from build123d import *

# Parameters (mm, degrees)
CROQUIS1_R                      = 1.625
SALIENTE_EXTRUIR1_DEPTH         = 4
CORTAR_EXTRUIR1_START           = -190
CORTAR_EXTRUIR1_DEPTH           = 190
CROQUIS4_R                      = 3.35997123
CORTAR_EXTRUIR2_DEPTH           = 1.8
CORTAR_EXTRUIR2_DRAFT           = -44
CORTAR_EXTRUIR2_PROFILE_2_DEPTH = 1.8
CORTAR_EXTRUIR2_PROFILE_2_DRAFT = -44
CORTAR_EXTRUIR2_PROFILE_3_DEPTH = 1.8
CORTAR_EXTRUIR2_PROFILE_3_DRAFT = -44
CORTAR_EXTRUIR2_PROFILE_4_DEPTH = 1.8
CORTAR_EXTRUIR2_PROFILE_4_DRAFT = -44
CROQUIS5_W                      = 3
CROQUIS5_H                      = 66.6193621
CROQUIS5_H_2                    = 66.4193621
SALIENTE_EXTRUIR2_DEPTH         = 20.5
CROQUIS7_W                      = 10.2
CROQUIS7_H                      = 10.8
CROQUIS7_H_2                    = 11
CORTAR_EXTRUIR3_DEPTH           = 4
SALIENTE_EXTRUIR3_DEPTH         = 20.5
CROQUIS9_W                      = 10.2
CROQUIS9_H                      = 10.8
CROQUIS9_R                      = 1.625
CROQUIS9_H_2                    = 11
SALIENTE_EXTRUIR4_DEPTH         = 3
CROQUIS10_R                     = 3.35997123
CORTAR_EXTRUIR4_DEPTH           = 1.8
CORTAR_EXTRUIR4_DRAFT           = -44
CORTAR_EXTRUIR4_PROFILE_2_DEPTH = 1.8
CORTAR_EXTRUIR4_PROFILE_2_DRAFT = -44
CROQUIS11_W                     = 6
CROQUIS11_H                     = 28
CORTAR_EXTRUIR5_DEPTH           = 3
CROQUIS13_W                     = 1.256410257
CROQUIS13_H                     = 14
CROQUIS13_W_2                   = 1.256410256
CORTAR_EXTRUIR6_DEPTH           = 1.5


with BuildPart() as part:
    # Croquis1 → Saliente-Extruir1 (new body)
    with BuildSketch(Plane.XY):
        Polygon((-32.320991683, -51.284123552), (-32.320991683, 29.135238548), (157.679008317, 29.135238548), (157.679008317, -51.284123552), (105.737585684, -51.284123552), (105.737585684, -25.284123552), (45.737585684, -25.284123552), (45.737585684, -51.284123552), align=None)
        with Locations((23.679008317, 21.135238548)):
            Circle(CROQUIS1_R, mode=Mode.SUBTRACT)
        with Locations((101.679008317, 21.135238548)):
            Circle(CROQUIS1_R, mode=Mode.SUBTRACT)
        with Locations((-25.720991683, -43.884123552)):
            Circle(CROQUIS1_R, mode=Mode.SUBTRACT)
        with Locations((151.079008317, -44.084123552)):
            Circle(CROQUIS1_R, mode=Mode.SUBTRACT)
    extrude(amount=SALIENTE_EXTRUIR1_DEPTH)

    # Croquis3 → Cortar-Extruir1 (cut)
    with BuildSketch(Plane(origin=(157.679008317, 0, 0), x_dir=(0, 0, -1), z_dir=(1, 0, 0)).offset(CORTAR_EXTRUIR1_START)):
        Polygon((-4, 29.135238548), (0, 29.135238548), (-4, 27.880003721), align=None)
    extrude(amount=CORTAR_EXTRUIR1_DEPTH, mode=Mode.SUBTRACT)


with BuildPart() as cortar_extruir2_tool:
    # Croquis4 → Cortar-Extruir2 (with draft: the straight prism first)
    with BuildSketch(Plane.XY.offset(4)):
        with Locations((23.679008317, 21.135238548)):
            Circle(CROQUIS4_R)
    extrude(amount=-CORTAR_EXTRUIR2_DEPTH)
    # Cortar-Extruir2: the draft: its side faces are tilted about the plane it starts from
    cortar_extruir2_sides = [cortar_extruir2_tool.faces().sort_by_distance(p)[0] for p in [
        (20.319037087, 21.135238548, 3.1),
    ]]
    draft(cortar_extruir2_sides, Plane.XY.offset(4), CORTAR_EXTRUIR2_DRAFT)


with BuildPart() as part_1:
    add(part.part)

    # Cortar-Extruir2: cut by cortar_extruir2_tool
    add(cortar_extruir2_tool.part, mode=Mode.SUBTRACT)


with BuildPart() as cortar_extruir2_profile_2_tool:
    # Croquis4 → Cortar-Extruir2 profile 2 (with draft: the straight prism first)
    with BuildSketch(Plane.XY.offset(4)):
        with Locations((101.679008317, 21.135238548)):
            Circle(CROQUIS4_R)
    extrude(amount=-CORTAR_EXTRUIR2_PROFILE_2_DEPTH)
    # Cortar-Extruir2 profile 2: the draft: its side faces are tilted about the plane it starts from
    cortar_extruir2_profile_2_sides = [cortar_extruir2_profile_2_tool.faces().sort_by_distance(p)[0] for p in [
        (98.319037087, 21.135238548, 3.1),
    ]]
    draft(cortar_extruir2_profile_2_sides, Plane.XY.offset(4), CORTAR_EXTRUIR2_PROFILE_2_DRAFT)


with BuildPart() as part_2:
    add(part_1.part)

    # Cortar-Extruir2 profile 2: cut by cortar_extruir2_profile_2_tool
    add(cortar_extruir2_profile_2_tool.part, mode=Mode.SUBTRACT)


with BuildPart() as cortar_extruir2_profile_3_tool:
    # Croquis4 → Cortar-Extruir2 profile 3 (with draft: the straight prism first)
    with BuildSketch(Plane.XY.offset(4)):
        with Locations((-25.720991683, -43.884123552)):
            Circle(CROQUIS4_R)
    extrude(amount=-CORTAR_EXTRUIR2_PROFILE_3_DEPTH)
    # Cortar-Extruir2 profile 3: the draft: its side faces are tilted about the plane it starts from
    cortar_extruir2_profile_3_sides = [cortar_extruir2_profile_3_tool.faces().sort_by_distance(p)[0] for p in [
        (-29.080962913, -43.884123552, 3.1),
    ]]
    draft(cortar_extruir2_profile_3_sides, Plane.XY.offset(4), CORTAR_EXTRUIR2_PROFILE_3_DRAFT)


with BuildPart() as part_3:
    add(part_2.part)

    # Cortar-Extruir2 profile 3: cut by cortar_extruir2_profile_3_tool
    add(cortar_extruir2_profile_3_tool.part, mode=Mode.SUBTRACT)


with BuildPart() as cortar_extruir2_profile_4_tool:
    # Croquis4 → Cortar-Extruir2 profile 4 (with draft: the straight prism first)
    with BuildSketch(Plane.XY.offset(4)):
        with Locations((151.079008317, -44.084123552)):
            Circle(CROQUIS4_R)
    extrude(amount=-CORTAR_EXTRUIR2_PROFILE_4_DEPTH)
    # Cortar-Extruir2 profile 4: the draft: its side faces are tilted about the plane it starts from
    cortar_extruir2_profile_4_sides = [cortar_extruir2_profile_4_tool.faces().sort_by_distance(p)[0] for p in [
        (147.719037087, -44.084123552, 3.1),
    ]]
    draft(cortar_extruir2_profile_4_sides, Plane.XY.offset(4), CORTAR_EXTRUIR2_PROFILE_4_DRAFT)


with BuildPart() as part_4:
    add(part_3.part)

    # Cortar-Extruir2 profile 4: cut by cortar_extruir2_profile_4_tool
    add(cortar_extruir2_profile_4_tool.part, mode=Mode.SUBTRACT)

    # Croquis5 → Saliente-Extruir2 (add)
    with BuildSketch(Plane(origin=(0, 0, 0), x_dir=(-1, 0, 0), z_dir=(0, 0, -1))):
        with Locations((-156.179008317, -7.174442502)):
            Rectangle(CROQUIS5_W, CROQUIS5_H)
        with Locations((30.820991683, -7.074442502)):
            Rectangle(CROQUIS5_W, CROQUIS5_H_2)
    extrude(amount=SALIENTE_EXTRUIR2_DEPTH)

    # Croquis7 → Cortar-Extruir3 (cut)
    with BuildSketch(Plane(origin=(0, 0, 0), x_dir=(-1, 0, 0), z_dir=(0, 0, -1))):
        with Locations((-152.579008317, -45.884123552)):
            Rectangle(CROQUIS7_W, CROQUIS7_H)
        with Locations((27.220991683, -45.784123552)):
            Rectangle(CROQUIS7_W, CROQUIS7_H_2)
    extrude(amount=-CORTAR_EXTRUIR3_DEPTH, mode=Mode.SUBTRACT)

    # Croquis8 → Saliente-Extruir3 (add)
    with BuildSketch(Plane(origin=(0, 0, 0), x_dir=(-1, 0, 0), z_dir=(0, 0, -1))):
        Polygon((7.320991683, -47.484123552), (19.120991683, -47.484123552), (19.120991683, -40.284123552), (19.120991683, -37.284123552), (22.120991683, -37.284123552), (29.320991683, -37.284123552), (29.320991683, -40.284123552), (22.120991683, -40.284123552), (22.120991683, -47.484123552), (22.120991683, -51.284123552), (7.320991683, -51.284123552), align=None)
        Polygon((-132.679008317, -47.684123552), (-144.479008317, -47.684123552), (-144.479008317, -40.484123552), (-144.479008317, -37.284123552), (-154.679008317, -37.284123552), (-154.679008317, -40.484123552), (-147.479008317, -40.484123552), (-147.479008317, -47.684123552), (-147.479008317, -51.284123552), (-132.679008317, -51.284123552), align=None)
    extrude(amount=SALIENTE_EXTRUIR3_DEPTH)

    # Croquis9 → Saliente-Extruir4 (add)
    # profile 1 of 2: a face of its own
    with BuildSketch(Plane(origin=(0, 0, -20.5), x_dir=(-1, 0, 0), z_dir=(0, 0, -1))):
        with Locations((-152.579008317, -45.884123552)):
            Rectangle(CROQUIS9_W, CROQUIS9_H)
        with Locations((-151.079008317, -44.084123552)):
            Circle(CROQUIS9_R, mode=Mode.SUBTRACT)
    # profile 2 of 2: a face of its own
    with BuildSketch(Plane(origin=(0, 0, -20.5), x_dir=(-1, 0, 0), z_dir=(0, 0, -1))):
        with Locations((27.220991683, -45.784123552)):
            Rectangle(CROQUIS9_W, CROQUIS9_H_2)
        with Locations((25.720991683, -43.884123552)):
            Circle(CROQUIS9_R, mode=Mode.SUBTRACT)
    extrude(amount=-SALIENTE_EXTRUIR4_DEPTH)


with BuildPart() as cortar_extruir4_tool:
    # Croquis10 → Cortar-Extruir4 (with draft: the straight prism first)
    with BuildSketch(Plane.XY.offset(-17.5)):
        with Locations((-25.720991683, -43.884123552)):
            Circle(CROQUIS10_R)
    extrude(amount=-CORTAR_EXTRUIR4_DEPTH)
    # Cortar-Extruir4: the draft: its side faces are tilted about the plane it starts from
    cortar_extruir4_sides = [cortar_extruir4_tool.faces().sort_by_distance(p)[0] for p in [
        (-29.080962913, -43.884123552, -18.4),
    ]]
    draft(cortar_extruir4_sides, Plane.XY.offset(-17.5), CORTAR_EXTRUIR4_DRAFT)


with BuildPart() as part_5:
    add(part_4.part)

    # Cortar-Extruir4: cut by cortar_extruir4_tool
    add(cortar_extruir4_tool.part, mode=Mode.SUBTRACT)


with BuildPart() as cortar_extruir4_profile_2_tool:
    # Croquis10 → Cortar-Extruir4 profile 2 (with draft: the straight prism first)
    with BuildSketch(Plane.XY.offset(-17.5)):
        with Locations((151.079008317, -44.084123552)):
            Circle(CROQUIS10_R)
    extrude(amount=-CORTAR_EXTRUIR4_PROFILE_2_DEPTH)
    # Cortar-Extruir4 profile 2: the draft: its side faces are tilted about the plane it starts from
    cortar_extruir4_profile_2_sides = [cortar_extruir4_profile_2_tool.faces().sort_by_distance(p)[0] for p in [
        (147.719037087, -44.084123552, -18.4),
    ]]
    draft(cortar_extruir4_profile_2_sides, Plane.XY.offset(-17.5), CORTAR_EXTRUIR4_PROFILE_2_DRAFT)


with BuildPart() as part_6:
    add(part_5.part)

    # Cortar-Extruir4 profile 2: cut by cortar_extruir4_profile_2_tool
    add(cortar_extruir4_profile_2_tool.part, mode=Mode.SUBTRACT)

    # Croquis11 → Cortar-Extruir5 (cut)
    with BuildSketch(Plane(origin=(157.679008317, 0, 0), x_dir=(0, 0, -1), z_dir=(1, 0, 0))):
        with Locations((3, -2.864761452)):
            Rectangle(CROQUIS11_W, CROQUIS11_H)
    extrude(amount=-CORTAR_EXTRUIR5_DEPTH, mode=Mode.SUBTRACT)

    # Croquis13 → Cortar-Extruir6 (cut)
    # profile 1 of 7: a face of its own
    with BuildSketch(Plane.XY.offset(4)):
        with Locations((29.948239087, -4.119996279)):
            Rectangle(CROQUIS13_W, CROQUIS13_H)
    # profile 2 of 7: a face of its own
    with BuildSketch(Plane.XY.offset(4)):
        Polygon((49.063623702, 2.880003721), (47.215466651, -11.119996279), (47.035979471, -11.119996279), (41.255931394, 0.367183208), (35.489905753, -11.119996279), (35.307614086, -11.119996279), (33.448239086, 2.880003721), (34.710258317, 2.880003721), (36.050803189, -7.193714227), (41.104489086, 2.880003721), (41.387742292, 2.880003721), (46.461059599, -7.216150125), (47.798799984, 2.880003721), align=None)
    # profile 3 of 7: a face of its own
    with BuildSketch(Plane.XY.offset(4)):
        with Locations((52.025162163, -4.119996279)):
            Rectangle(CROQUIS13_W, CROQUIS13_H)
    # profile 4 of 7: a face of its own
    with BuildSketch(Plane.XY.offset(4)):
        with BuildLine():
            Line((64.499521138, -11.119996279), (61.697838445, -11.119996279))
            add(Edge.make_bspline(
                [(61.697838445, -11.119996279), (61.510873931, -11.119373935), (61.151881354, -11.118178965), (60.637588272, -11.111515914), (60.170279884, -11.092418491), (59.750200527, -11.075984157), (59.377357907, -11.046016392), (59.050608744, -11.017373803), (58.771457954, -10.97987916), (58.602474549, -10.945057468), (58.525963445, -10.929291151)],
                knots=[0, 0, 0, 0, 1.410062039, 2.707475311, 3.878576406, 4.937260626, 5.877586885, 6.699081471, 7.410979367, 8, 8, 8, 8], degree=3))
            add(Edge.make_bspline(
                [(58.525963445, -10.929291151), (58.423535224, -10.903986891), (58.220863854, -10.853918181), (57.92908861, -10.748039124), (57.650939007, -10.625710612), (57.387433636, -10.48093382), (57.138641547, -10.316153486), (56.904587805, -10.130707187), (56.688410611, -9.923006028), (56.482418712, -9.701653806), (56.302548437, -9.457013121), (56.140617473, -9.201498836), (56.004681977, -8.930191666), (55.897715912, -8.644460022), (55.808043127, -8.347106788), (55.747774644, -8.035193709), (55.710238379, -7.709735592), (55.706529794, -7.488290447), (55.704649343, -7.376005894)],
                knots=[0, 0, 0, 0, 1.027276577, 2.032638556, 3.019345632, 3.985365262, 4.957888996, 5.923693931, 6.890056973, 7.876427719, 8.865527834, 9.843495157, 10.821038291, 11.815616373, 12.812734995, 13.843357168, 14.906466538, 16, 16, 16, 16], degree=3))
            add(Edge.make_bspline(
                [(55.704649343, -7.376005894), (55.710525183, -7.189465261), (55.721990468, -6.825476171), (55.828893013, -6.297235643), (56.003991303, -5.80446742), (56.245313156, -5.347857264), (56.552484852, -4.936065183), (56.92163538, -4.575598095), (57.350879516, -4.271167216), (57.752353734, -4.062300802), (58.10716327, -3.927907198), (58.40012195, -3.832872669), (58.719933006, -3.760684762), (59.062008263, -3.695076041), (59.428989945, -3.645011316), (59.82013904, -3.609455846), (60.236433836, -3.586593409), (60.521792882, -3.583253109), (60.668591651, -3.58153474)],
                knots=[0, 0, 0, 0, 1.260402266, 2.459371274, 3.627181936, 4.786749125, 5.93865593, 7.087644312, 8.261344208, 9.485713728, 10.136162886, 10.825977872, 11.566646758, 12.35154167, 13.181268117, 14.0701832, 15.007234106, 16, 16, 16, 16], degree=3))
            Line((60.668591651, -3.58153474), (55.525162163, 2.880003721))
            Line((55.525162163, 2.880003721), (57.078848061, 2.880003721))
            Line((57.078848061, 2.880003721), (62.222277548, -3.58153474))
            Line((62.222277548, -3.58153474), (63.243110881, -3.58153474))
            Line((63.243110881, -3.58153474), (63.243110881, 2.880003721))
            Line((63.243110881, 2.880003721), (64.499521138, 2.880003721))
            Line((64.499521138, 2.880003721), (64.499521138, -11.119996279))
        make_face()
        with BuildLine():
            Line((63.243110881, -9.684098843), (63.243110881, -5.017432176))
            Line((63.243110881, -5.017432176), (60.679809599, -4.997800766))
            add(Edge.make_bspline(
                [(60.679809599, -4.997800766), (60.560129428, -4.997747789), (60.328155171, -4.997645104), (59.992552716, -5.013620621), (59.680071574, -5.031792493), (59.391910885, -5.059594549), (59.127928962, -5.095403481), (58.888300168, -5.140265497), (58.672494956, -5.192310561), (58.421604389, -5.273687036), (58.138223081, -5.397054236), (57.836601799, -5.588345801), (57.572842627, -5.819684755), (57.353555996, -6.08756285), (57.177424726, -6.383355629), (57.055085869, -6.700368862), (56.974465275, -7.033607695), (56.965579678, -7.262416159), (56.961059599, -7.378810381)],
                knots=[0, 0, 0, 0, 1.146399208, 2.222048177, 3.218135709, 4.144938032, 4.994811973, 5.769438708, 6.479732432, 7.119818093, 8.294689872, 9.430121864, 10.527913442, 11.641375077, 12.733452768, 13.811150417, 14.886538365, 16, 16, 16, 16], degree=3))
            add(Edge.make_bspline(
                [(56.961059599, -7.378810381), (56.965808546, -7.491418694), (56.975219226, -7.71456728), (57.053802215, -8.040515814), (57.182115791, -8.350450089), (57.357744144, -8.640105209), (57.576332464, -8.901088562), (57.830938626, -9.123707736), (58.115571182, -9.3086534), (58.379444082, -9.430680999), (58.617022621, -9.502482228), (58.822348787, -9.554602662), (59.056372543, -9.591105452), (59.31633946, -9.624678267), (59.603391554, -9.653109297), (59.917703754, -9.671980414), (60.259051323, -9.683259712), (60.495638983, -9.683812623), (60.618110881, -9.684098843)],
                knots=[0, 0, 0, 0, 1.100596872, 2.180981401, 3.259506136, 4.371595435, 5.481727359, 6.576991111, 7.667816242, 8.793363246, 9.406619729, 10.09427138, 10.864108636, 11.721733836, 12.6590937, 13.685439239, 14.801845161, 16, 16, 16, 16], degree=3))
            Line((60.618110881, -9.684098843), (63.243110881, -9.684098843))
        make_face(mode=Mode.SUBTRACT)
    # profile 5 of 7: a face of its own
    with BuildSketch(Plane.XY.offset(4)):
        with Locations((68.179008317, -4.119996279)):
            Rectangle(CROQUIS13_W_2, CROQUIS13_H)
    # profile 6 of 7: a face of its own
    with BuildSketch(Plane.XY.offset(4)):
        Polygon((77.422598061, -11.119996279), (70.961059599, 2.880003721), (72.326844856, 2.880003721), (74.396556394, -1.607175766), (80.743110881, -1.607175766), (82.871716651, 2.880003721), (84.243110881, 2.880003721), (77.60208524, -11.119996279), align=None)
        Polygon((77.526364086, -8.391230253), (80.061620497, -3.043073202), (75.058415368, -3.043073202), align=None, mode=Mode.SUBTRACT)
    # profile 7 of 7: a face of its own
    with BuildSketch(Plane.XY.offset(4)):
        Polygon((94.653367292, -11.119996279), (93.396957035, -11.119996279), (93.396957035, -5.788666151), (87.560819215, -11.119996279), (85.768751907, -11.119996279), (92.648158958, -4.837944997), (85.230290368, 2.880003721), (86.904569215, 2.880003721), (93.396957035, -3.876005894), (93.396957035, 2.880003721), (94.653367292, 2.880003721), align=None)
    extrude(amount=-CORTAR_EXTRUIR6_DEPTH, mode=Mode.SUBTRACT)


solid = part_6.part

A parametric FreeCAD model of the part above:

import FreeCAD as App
import Part
import Sketcher

V = App.Vector
Q = App.Units.Quantity


def faces_at(feature, points):
    """Names of the faces that lie closest to the given points."""
    faces = feature.Shape.Faces
    near = lambda p: min(range(len(faces)), key=lambda i: faces[i].distToShape(Part.Vertex(*p))[0])
    return sorted({f"Face{near(p) + 1}" for p in points})


def add_polygon(sketch, points):
    """Adds a closed chain of lines whose ends are joined by coincident constraints."""
    first, n = sketch.GeometryCount, len(points)
    for a, b in zip(points, points[1:] + points[:1]):
        sketch.addGeometry(Part.LineSegment(App.Vector(*a, 0), App.Vector(*b, 0)), False)
    for i in range(n):
        sketch.addConstraint(Sketcher.Constraint("Coincident", first + i, 2, first + (i + 1) % n, 1))

doc = App.newDocument("Part")
body = doc.addObject("PartDesign::Body", "Body")

# Sketch on XY plane
sketch1 = body.newObject("Sketcher::SketchObject", "Sketch")
sketch1.AttachmentSupport = (doc.getObject("XY_Plane"), [""])
sketch1.MapMode = "FlatFace"
add_polygon(sketch1, [(-32.3, 29.1), (-32.3, -51.3), (45.7, -51.3), (45.7, -25.3), (105.7, -25.3), (105.7, -51.3), (157.7, -51.3), (157.7, 29.1)])  # lines 0-7
sketch1.addGeometry(Part.Circle(V(151.1, -44.1, 0), V(0, 0, 1), 1.6), False)  # 8
sketch1.addGeometry(Part.Circle(V(-25.7, -43.9, 0), V(0, 0, 1), 1.6), False)  # 9
sketch1.addGeometry(Part.Circle(V(101.7, 21.1, 0), V(0, 0, 1), 1.6), False)  # 10
sketch1.addGeometry(Part.Circle(V(23.7, 21.1, 0), V(0, 0, 1), 1.6), False)  # 11
sketch1.addConstraint([
    Sketcher.Constraint("Vertical", 0),
    Sketcher.Constraint("Horizontal", 1),
    Sketcher.Constraint("Vertical", 2),
    Sketcher.Constraint("Horizontal", 3),
    Sketcher.Constraint("Vertical", 4),
    Sketcher.Constraint("Horizontal", 5),
    Sketcher.Constraint("Vertical", 6),
    Sketcher.Constraint("Horizontal", 7),
    Sketcher.Constraint("Equal", 8, 9),
    Sketcher.Constraint("Equal", 9, 10),
    Sketcher.Constraint("Equal", 10, 11),
    Sketcher.Constraint("Horizontal", 10, 3, 11, 3),
    Sketcher.Constraint("Horizontal", 1, 2, 4, 2),
    Sketcher.Constraint("Diameter", 8, 3.25),
    Sketcher.Constraint("DistanceX", 3, 1, 3, 2, 60.0),
    Sketcher.Constraint("DistanceX", 7, 2, 7, 1, 190.0),
    Sketcher.Constraint("DistanceY", 2, 1, 2, 2, 26.0),
    Sketcher.Constraint("DistanceX", 11, 3, 10, 3, 78.0),
    Sketcher.Constraint("DistanceX", 0, 2, 11, 3, 56.0),
    Sketcher.Constraint("DistanceY", 10, 3, 6, 2, 8.0),
    Sketcher.Constraint("DistanceX", 9, 3, 8, 3, 176.8),
    Sketcher.Constraint("DistanceY", 8, 3, 9, 3, 0.2),
    Sketcher.Constraint("DistanceX", 10, 3, 8, 3, 49.4),
    Sketcher.Constraint("DistanceY", 0, 2, 9, 3, 7.4),
    Sketcher.Constraint("DistanceX", 1, 1, 1, 2, 78.058577),
    Sketcher.Constraint("DistanceY", 0, 2, 0, 1, 80.419362),
    Sketcher.Constraint("DistanceX", -1, 1, 8, 3, 151.079008),
    Sketcher.Constraint("DistanceY", -1, 1, 10, 3, 21.135239),
])
pad1 = body.newObject("PartDesign::Pad", "Pad")
pad1.Profile = sketch1
pad1.Length = 4

# Sketch on YZ plane
sketch2 = body.newObject("Sketcher::SketchObject", "Sketch001")
sketch2.AttachmentSupport = (doc.getObject("YZ_Plane"), [""])
sketch2.MapMode = "FlatFace"
sketch2.AttachmentOffset = App.Placement(V(0, 0, -32.320992), App.Rotation())
add_polygon(sketch2, [(29.1, 0), (29.1, 4), (27.9, 4)])  # lines 0-2
sketch2.addConstraint([
    Sketcher.Constraint("Vertical", 0),
    Sketcher.Constraint("Horizontal", 1),
    Sketcher.Constraint("PointOnObject", 2, 2, -1),
    Sketcher.Constraint("DistanceY", 0, 1, 0, 2, 4.0),
    Sketcher.Constraint("Distance", 2, 4.192328),
    Sketcher.Constraint("DistanceX", -1, 1, 0, 2, 29.135239),
])
pocket1 = body.newObject("PartDesign::Pocket", "Pocket")
pocket1.Profile = sketch2
pocket1.Length = 190
pocket1.Reversed = True
body2 = doc.addObject("PartDesign::Body", "Body001")

# Sketch on XY plane
sketch3 = body2.newObject("Sketcher::SketchObject", "Sketch002")
sketch3.AttachmentSupport = (doc.getObject("XY_Plane001"), [""])
sketch3.MapMode = "FlatFace"
sketch3.AttachmentOffset = App.Placement(V(0, 0, 4), App.Rotation())
sketch3.addGeometry(Part.Circle(V(23.7, 21.1, 0), V(0, 0, 1), 3.4), False)
sketch3.addConstraint([
    Sketcher.Constraint("Diameter", 0, 6.719942),
    Sketcher.Constraint("DistanceX", -1, 1, 0, 3, 23.679008),
    Sketcher.Constraint("DistanceY", -1, 1, 0, 3, 21.135239),
])
pad2 = body2.newObject("PartDesign::Pad", "Pad001")
pad2.Profile = sketch3
pad2.Length = 1.8
pad2.Reversed = True
doc.recompute()

datumplane = body2.newObject("PartDesign::Plane", "DatumPlane")
datumplane.AttachmentSupport = (doc.getObject("XY_Plane001"), [""])
datumplane.MapMode = "FlatFace"
datumplane.AttachmentOffset = App.Placement(V(0, 0, 4), App.Rotation())
draft = body2.newObject("PartDesign::Draft", "Draft")
draft.Base = (pad2, faces_at(pad2, [(20.319, 21.135, 3.1)]))
draft.NeutralPlane = (datumplane, [""])
draft.Angle = 44
draft.Reversed = True
doc.recompute()

boolean = body.newObject("PartDesign::Boolean", "Boolean")
boolean.Type = "Cut"
boolean.addObjects([body2])
body3 = doc.addObject("PartDesign::Body", "Body002")

# Sketch on XY plane
sketch4 = body3.newObject("Sketcher::SketchObject", "Sketch003")
sketch4.AttachmentSupport = (doc.getObject("XY_Plane002"), [""])
sketch4.MapMode = "FlatFace"
sketch4.AttachmentOffset = App.Placement(V(0, 0, 4), App.Rotation())
sketch4.addGeometry(Part.Circle(V(101.7, 21.1, 0), V(0, 0, 1), 3.4), False)
sketch4.addConstraint([
    Sketcher.Constraint("Diameter", 0, 6.719942),
    Sketcher.Constraint("DistanceX", -1, 1, 0, 3, 101.679008),
    Sketcher.Constraint("DistanceY", -1, 1, 0, 3, 21.135239),
])
pad3 = body3.newObject("PartDesign::Pad", "Pad002")
pad3.Profile = sketch4
pad3.Length = 1.8
pad3.Reversed = True
doc.recompute()

datumplane2 = body3.newObject("PartDesign::Plane", "DatumPlane001")
datumplane2.AttachmentSupport = (doc.getObject("XY_Plane002"), [""])
datumplane2.MapMode = "FlatFace"
datumplane2.AttachmentOffset = App.Placement(V(0, 0, 4), App.Rotation())
draft2 = body3.newObject("PartDesign::Draft", "Draft001")
draft2.Base = (pad3, faces_at(pad3, [(98.319, 21.135, 3.1)]))
draft2.NeutralPlane = (datumplane2, [""])
draft2.Angle = 44
draft2.Reversed = True
doc.recompute()

boolean2 = body.newObject("PartDesign::Boolean", "Boolean001")
boolean2.Type = "Cut"
boolean2.addObjects([body3])
body4 = doc.addObject("PartDesign::Body", "Body003")

# Sketch on XY plane
sketch5 = body4.newObject("Sketcher::SketchObject", "Sketch004")
sketch5.AttachmentSupport = (doc.getObject("XY_Plane003"), [""])
sketch5.MapMode = "FlatFace"
sketch5.AttachmentOffset = App.Placement(V(0, 0, 4), App.Rotation())
sketch5.addGeometry(Part.Circle(V(-25.7, -43.9, 0), V(0, 0, 1), 3.4), False)
sketch5.addConstraint([
    Sketcher.Constraint("Diameter", 0, 6.719942),
    Sketcher.Constraint("DistanceX", 0, 3, -1, 1, 25.720992),
    Sketcher.Constraint("DistanceY", 0, 3, -1, 1, 43.884124),
])
pad4 = body4.newObject("PartDesign::Pad", "Pad003")
pad4.Profile = sketch5
pad4.Length = 1.8
pad4.Reversed = True
doc.recompute()

datumplane3 = body4.newObject("PartDesign::Plane", "DatumPlane002")
datumplane3.AttachmentSupport = (doc.getObject("XY_Plane003"), [""])
datumplane3.MapMode = "FlatFace"
datumplane3.AttachmentOffset = App.Placement(V(0, 0, 4), App.Rotation())
draft3 = body4.newObject("PartDesign::Draft", "Draft002")
draft3.Base = (pad4, faces_at(pad4, [(-29.081, -43.884, 3.1)]))
draft3.NeutralPlane = (datumplane3, [""])
draft3.Angle = 44
draft3.Reversed = True
doc.recompute()

boolean3 = body.newObject("PartDesign::Boolean", "Boolean002")
boolean3.Type = "Cut"
boolean3.addObjects([body4])
body5 = doc.addObject("PartDesign::Body", "Body004")

# Sketch on XY plane
sketch6 = body5.newObject("Sketcher::SketchObject", "Sketch005")
sketch6.AttachmentSupport = (doc.getObject("XY_Plane004"), [""])
sketch6.MapMode = "FlatFace"
sketch6.AttachmentOffset = App.Placement(V(0, 0, 4), App.Rotation())
sketch6.addGeometry(Part.Circle(V(151.1, -44.1, 0), V(0, 0, 1), 3.4), False)
sketch6.addConstraint([
    Sketcher.Constraint("Diameter", 0, 6.719942),
    Sketcher.Constraint("DistanceX", -1, 1, 0, 3, 151.079008),
    Sketcher.Constraint("DistanceY", 0, 3, -1, 1, 44.084124),
])
pad5 = body5.newObject("PartDesign::Pad", "Pad004")
pad5.Profile = sketch6
pad5.Length = 1.8
pad5.Reversed = True
doc.recompute()

datumplane4 = body5.newObject("PartDesign::Plane", "DatumPlane003")
datumplane4.AttachmentSupport = (doc.getObject("XY_Plane004"), [""])
datumplane4.MapMode = "FlatFace"
datumplane4.AttachmentOffset = App.Placement(V(0, 0, 4), App.Rotation())
draft4 = body5.newObject("PartDesign::Draft", "Draft003")
draft4.Base = (pad5, faces_at(pad5, [(147.719, -44.084, 3.1)]))
draft4.NeutralPlane = (datumplane4, [""])
draft4.Angle = 44
draft4.Reversed = True
doc.recompute()

boolean4 = body.newObject("PartDesign::Boolean", "Boolean003")
boolean4.Type = "Cut"
boolean4.addObjects([body5])

# Sketch on XY plane
sketch7 = body.newObject("Sketcher::SketchObject", "Sketch006")
sketch7.AttachmentSupport = (doc.getObject("XY_Plane"), [""])
sketch7.MapMode = "FlatFace"
add_polygon(sketch7, [(157.7, 26.1), (157.7, -40.5), (154.7, -40.5), (154.7, 26.1)])  # lines 0-3
add_polygon(sketch7, [(-29.3, 26.1), (-29.3, -40.3), (-32.3, -40.3), (-32.3, 26.1)])  # lines 4-7
sketch7.addConstraint([
    Sketcher.Constraint("Vertical", 0),
    Sketcher.Constraint("Horizontal", 1),
    Sketcher.Constraint("Vertical", 2),
    Sketcher.Constraint("Horizontal", 3),
    Sketcher.Constraint("Vertical", 4),
    Sketcher.Constraint("Horizontal", 5),
    Sketcher.Constraint("Vertical", 6),
    Sketcher.Constraint("Horizontal", 7),
    Sketcher.Constraint("Horizontal", 3, 2, 6, 2),
    Sketcher.Constraint("Equal", 3, 5),
    Sketcher.Constraint("DistanceX", 1, 2, 1, 1, 3.0),
    Sketcher.Constraint("DistanceX", 4, 2, 1, 2, 184.0),
    Sketcher.Constraint("DistanceY", 1, 2, 4, 2, 0.2),
    Sketcher.Constraint("DistanceY", 0, 2, 0, 1, 66.619362),
    Sketcher.Constraint("DistanceX", -1, 1, 0, 2, 157.679008),
    Sketcher.Constraint("DistanceY", -1, 1, 2, 2, 26.135239),
])
pad6 = body.newObject("PartDesign::Pad", "Pad005")
pad6.Profile = sketch7
pad6.Length = 20.5
pad6.Reversed = True

# Sketch on XY plane
sketch8 = body.newObject("Sketcher::SketchObject", "Sketch007")
sketch8.AttachmentSupport = (doc.getObject("XY_Plane"), [""])
sketch8.MapMode = "FlatFace"
add_polygon(sketch8, [(158, -40), (158, -51), (147, -51), (147, -40)])  # lines 0-3
add_polygon(sketch8, [(-22, -40), (-22, -51), (-32, -51), (-32, -40)])  # lines 4-7
sketch8.addConstraint([
    Sketcher.Constraint("Vertical", 0),
    Sketcher.Constraint("Horizontal", 1),
    Sketcher.Constraint("Vertical", 2),
    Sketcher.Constraint("Horizontal", 3),
    Sketcher.Constraint("Vertical", 4),
    Sketcher.Constraint("Horizontal", 5),
    Sketcher.Constraint("Vertical", 6),
    Sketcher.Constraint("Horizontal", 7),
    Sketcher.Constraint("Horizontal", 1, 2, 4, 2),
    Sketcher.Constraint("Equal", 3, 5),
    Sketcher.Constraint("DistanceY", 4, 2, 4, 1, 11.0),
    Sketcher.Constraint("DistanceX", 1, 2, 1, 1, 10.2),
    Sketcher.Constraint("DistanceY", 0, 2, 0, 1, 10.8),
    Sketcher.Constraint("DistanceX", 5, 2, 0, 2, 190.0),
    Sketcher.Constraint("DistanceX", -1, 1, 0, 2, 157.679008),
    Sketcher.Constraint("DistanceY", 0, 2, -1, 1, 51.284124),
])
pocket2 = body.newObject("PartDesign::Pocket", "Pocket001")
pocket2.Profile = sketch8
pocket2.Length = 4
pocket2.Reversed = True

# Sketch on XY plane
sketch9 = body.newObject("Sketcher::SketchObject", "Sketch008")
sketch9.AttachmentSupport = (doc.getObject("XY_Plane"), [""])
sketch9.MapMode = "FlatFace"
add_polygon(sketch9, [(-19.1, -47.5), (-7.3, -47.5), (-7.3, -51.3), (-22.1, -51.3), (-22.1, -40.3), (-29.3, -40.3), (-29.3, -37.3), (-19.1, -37.3)])  # lines 0-7
add_polygon(sketch9, [(132.7, -47.7), (144.5, -47.7), (144.5, -37.3), (154.7, -37.3), (154.7, -40.5), (147.5, -40.5), (147.5, -51.3), (132.7, -51.3)])  # lines 8-15
sketch9.addConstraint([
    Sketcher.Constraint("Horizontal", 0),
    Sketcher.Constraint("Vertical", 1),
    Sketcher.Constraint("Horizontal", 2),
    Sketcher.Constraint("Vertical", 3),
    Sketcher.Constraint("Horizontal", 4),
    Sketcher.Constraint("Vertical", 5),
    Sketcher.Constraint("Horizontal", 6),
    Sketcher.Constraint("Vertical", 7),
    Sketcher.Constraint("Horizontal", 8),
    Sketcher.Constraint("Vertical", 9),
    Sketcher.Constraint("Horizontal", 10),
    Sketcher.Constraint("Vertical", 11),
    Sketcher.Constraint("Horizontal", 12),
    Sketcher.Constraint("Vertical", 13),
    Sketcher.Constraint("Horizontal", 14),
    Sketcher.Constraint("Vertical", 15),
    Sketcher.Constraint("Horizontal", 6, 2, 9, 2),
    Sketcher.Constraint("Horizontal", 2, 2, 13, 2),
    Sketcher.Constraint("Equal", 0, 8),
    Sketcher.Constraint("Equal", 6, 10),
    Sketcher.Constraint("Equal", 4, 12),
    Sketcher.Constraint("Equal", 10, 7),
    Sketcher.Constraint("DistanceY", 3, 1, 3, 2, 11.0),
    Sketcher.Constraint("DistanceY", 5, 1, 5, 2, 3.0),
    Sketcher.Constraint("DistanceX", 0, 1, 0, 2, 11.8),
    Sketcher.Constraint("DistanceX", 2, 2, 2, 1, 14.8),
    Sketcher.Constraint("DistanceX", 4, 2, 4, 1, 7.2),
    Sketcher.Constraint("DistanceY", 9, 1, 9, 2, 10.4),
    Sketcher.Constraint("DistanceY", 11, 2, 11, 1, 3.2),
    Sketcher.Constraint("DistanceX", 0, 2, 10, 2, 162.0),
    Sketcher.Constraint("DistanceX", 0, 2, -1, 1, 7.320992),
    Sketcher.Constraint("DistanceY", 0, 2, -1, 1, 47.484124),
])
pad7 = body.newObject("PartDesign::Pad", "Pad006")
pad7.Profile = sketch9
pad7.Length = 20.5
pad7.Reversed = True

# Sketch on XY plane
sketch10 = body.newObject("Sketcher::SketchObject", "Sketch009")
sketch10.AttachmentSupport = (doc.getObject("XY_Plane"), [""])
sketch10.MapMode = "FlatFace"
sketch10.AttachmentOffset = App.Placement(V(0, 0, -20.5), App.Rotation())
add_polygon(sketch10, [(157.7, -40.5), (157.7, -51.3), (147.5, -51.3), (147.5, -40.5)])  # lines 0-3
sketch10.addGeometry(Part.Circle(V(151.1, -44.1, 0), V(0, 0, 1), 1.6), False)  # 4
add_polygon(sketch10, [(-22.1, -40.3), (-22.1, -51.3), (-32.3, -51.3), (-32.3, -40.3)])  # lines 5-8
sketch10.addGeometry(Part.Circle(V(-25.7, -43.9, 0), V(0, 0, 1), 1.6), False)  # 9
sketch10.addConstraint([
    Sketcher.Constraint("Vertical", 0),
    Sketcher.Constraint("Horizontal", 1),
    Sketcher.Constraint("Vertical", 2),
    Sketcher.Constraint("Horizontal", 3),
    Sketcher.Constraint("Vertical", 5),
    Sketcher.Constraint("Horizontal", 6),
    Sketcher.Constraint("Vertical", 7),
    Sketcher.Constraint("Horizontal", 8),
    Sketcher.Constraint("Equal", 4, 9),
    Sketcher.Constraint("Horizontal", 1, 2, 5, 2),
    Sketcher.Constraint("Equal", 3, 6),
    Sketcher.Constraint("Diameter", 4, 3.25),
    Sketcher.Constraint("DistanceY", 5, 2, 5, 1, 11.0),
    Sketcher.Constraint("DistanceX", 1, 2, 1, 1, 10.2),
    Sketcher.Constraint("DistanceY", 0, 2, 0, 1, 10.8),
    Sketcher.Constraint("DistanceX", 9, 3, 4, 3, 176.8),
    Sketcher.Constraint("DistanceY", 4, 3, 9, 3, 0.2),
    Sketcher.Constraint("DistanceX", 4, 3, 0, 2, 6.6),
    Sketcher.Constraint("DistanceY", 0, 2, 4, 3, 7.2),
    Sketcher.Constraint("DistanceX", 9, 3, 5, 2, 3.6),
    Sketcher.Constraint("DistanceX", -1, 1, 4, 3, 151.079008),
    Sketcher.Constraint("DistanceY", 4, 3, -1, 1, 44.084124),
])
pad8 = body.newObject("PartDesign::Pad", "Pad007")
pad8.Profile = sketch10
pad8.Length = 3
body6 = doc.addObject("PartDesign::Body", "Body005")

# Sketch on XY plane
sketch11 = body6.newObject("Sketcher::SketchObject", "Sketch010")
sketch11.AttachmentSupport = (doc.getObject("XY_Plane005"), [""])
sketch11.MapMode = "FlatFace"
sketch11.AttachmentOffset = App.Placement(V(0, 0, -17.5), App.Rotation())
sketch11.addGeometry(Part.Circle(V(-25.7, -43.9, 0), V(0, 0, 1), 3.4), False)
sketch11.addConstraint([
    Sketcher.Constraint("Diameter", 0, 6.719942),
    Sketcher.Constraint("DistanceX", 0, 3, -1, 1, 25.720992),
    Sketcher.Constraint("DistanceY", 0, 3, -1, 1, 43.884124),
])
pad9 = body6.newObject("PartDesign::Pad", "Pad008")
pad9.Profile = sketch11
pad9.Length = 1.8
pad9.Reversed = True
doc.recompute()

datumplane5 = body6.newObject("PartDesign::Plane", "DatumPlane004")
datumplane5.AttachmentSupport = (doc.getObject("XY_Plane005"), [""])
datumplane5.MapMode = "FlatFace"
datumplane5.AttachmentOffset = App.Placement(V(0, 0, -17.5), App.Rotation())
draft5 = body6.newObject("PartDesign::Draft", "Draft004")
draft5.Base = (pad9, faces_at(pad9, [(-29.081, -43.884, -18.4)]))
draft5.NeutralPlane = (datumplane5, [""])
draft5.Angle = 44
draft5.Reversed = True
doc.recompute()

boolean5 = body.newObject("PartDesign::Boolean", "Boolean004")
boolean5.Type = "Cut"
boolean5.addObjects([body6])
body7 = doc.addObject("PartDesign::Body", "Body006")

# Sketch on XY plane
sketch12 = body7.newObject("Sketcher::SketchObject", "Sketch011")
sketch12.AttachmentSupport = (doc.getObject("XY_Plane006"), [""])
sketch12.MapMode = "FlatFace"
sketch12.AttachmentOffset = App.Placement(V(0, 0, -17.5), App.Rotation())
sketch12.addGeometry(Part.Circle(V(151.1, -44.1, 0), V(0, 0, 1), 3.4), False)
sketch12.addConstraint([
    Sketcher.Constraint("Diameter", 0, 6.719942),
    Sketcher.Constraint("DistanceX", -1, 1, 0, 3, 151.079008),
    Sketcher.Constraint("DistanceY", 0, 3, -1, 1, 44.084124),
])
pad10 = body7.newObject("PartDesign::Pad", "Pad009")
pad10.Profile = sketch12
pad10.Length = 1.8
pad10.Reversed = True
doc.recompute()

datumplane6 = body7.newObject("PartDesign::Plane", "DatumPlane005")
datumplane6.AttachmentSupport = (doc.getObject("XY_Plane006"), [""])
datumplane6.MapMode = "FlatFace"
datumplane6.AttachmentOffset = App.Placement(V(0, 0, -17.5), App.Rotation())
draft6 = body7.newObject("PartDesign::Draft", "Draft005")
draft6.Base = (pad10, faces_at(pad10, [(147.719, -44.084, -18.4)]))
draft6.NeutralPlane = (datumplane6, [""])
draft6.Angle = 44
draft6.Reversed = True
doc.recompute()

boolean6 = body.newObject("PartDesign::Boolean", "Boolean005")
boolean6.Type = "Cut"
boolean6.addObjects([body7])

# Sketch on YZ plane
sketch13 = body.newObject("Sketcher::SketchObject", "Sketch012")
sketch13.AttachmentSupport = (doc.getObject("YZ_Plane"), [""])
sketch13.MapMode = "FlatFace"
sketch13.AttachmentOffset = App.Placement(V(0, 0, 157.679008), App.Rotation())
add_polygon(sketch13, [(11, 0), (-17, 0), (-17, -6), (11, -6)])  # lines 0-3
sketch13.addConstraint([
    Sketcher.Constraint("Horizontal", 0),
    Sketcher.Constraint("Vertical", 1),
    Sketcher.Constraint("Horizontal", 2),
    Sketcher.Constraint("Vertical", 3),
    Sketcher.Constraint("PointOnObject", 0, 2, -1),
    Sketcher.Constraint("DistanceX", 0, 2, 0, 1, 28.0),
    Sketcher.Constraint("DistanceY", 1, 2, 1, 1, 6.0),
    Sketcher.Constraint("DistanceX", 0, 2, -1, 1, 16.864761),
])
pocket3 = body.newObject("PartDesign::Pocket", "Pocket002")
pocket3.Profile = sketch13
pocket3.Length = 3

# Sketch on XY plane
sketch14 = body.newObject("Sketcher::SketchObject", "Sketch013")
sketch14.AttachmentSupport = (doc.getObject("XY_Plane"), [""])
sketch14.MapMode = "FlatFace"
sketch14.AttachmentOffset = App.Placement(V(0, 0, 4), App.Rotation())
add_polygon(sketch14, [(29.320034, 2.880004), (29.320034, -11.119996), (30.576444, -11.119996), (30.576444, 2.880004)])  # lines 0-3
add_polygon(sketch14, [(47.215467, -11.119996), (49.063624, 2.880004), (47.7988, 2.880004), (46.46106, -7.21615), (41.387742, 2.880004), (41.104489, 2.880004), (36.050803, -7.193714), (34.710258, 2.880004), (33.448239, 2.880004), (35.307614, -11.119996), (35.489906, -11.119996), (41.255931, 0.367183), (47.035979, -11.119996)])  # lines 4-16
add_polygon(sketch14, [(51.396957, 2.880004), (51.396957, -11.119996), (52.653367, -11.119996), (52.653367, 2.880004)])  # lines 17-20
sketch14.addGeometry(Part.LineSegment(V(61.697838, -11.119996, 0), V(64.499521, -11.119996, 0)), False)  # 21
sketch14.addGeometry(Part.LineSegment(V(64.499521, -11.119996, 0), V(64.499521, 2.880004, 0)), False)  # 22
sketch14.addGeometry(Part.LineSegment(V(64.499521, 2.880004, 0), V(63.243111, 2.880004, 0)), False)  # 23
sketch14.addGeometry(Part.LineSegment(V(63.243111, 2.880004, 0), V(63.243111, -3.581535, 0)), False)  # 24
sketch14.addGeometry(Part.LineSegment(V(63.243111, -3.581535, 0), V(62.222278, -3.581535, 0)), False)  # 25
sketch14.addGeometry(Part.LineSegment(V(62.222278, -3.581535, 0), V(57.078848, 2.880004, 0)), False)  # 26
sketch14.addGeometry(Part.LineSegment(V(57.078848, 2.880004, 0), V(55.525162, 2.880004, 0)), False)  # 27
sketch14.addGeometry(Part.LineSegment(V(55.525162, 2.880004, 0), V(60.668592, -3.581535, 0)), False)  # 28
sketch14.addGeometry(Part.BSplineCurve([V(55.704649, -7.376006, 0), V(55.710525, -7.189465, 0), V(55.72199, -6.825476, 0), V(55.828893, -6.297236, 0), V(56.003991, -5.804467, 0), V(56.245313, -5.347857, 0), V(56.552485, -4.936065, 0), V(56.921635, -4.575598, 0), V(57.35088, -4.271167, 0), V(57.752354, -4.062301, 0), V(58.107163, -3.927907, 0), V(58.400122, -3.832873, 0), V(58.719933, -3.760685, 0), V(59.062008, -3.695076, 0), V(59.42899, -3.645011, 0), V(59.820139, -3.609456, 0), V(60.236434, -3.586593, 0), V(60.521793, -3.583253, 0), V(60.668592, -3.581535, 0)], [4, 1, 1, 1, 1, 1, 1, 1, 1, 1, 1, 1, 1, 1, 1, 1, 4], [0, 1.260402266, 2.459371274, 3.627181936, 4.786749125, 5.93865593, 7.087644312, 8.261344208, 9.485713728, 10.136162886, 10.825977872, 11.566646758, 12.35154167, 13.181268117, 14.0701832, 15.007234106, 16], False, 3, [1, 1, 1, 1, 1, 1, 1, 1, 1, 1, 1, 1, 1, 1, 1, 1, 1, 1, 1], False), False)  # 29
sketch14.addGeometry(Part.BSplineCurve([V(58.525963, -10.929291, 0), V(58.423535, -10.903987, 0), V(58.220864, -10.853918, 0), V(57.929089, -10.748039, 0), V(57.650939, -10.625711, 0), V(57.387434, -10.480934, 0), V(57.138642, -10.316153, 0), V(56.904588, -10.130707, 0), V(56.688411, -9.923006, 0), V(56.482419, -9.701654, 0), V(56.302548, -9.457013, 0), V(56.140617, -9.201499, 0), V(56.004682, -8.930192, 0), V(55.897716, -8.64446, 0), V(55.808043, -8.347107, 0), V(55.747775, -8.035194, 0), V(55.710238, -7.709736, 0), V(55.70653, -7.48829, 0), V(55.704649, -7.376006, 0)], [4, 1, 1, 1, 1, 1, 1, 1, 1, 1, 1, 1, 1, 1, 1, 1, 4], [0, 1.027276577, 2.032638556, 3.019345632, 3.985365262, 4.957888996, 5.923693931, 6.890056973, 7.876427719, 8.865527834, 9.843495157, 10.821038291, 11.815616373, 12.812734995, 13.843357168, 14.906466538, 16], False, 3, [1, 1, 1, 1, 1, 1, 1, 1, 1, 1, 1, 1, 1, 1, 1, 1, 1, 1, 1], False), False)  # 30
sketch14.addGeometry(Part.BSplineCurve([V(61.697838, -11.119996, 0), V(61.510874, -11.119374, 0), V(61.151881, -11.118179, 0), V(60.637588, -11.111516, 0), V(60.17028, -11.092418, 0), V(59.750201, -11.075984, 0), V(59.377358, -11.046016, 0), V(59.050609, -11.017374, 0), V(58.771458, -10.979879, 0), V(58.602475, -10.945057, 0), V(58.525963, -10.929291, 0)], [4, 1, 1, 1, 1, 1, 1, 1, 4], [0, 1.410062039, 2.707475311, 3.878576406, 4.937260626, 5.877586885, 6.699081471, 7.410979367, 8], False, 3, [1, 1, 1, 1, 1, 1, 1, 1, 1, 1, 1], False), False)  # 31
sketch14.addGeometry(Part.LineSegment(V(63.243111, -9.684099, 0), V(60.618111, -9.684099, 0)), False)  # 32
sketch14.addGeometry(Part.BSplineCurve([V(56.96106, -7.37881, 0), V(56.965809, -7.491419, 0), V(56.975219, -7.714567, 0), V(57.053802, -8.040516, 0), V(57.182116, -8.35045, 0), V(57.357744, -8.640105, 0), V(57.576332, -8.901089, 0), V(57.830939, -9.123708, 0), V(58.115571, -9.308653, 0), V(58.379444, -9.430681, 0), V(58.617023, -9.502482, 0), V(58.822349, -9.554603, 0), V(59.056373, -9.591105, 0), V(59.316339, -9.624678, 0), V(59.603392, -9.653109, 0), V(59.917704, -9.67198, 0), V(60.259051, -9.68326, 0), V(60.495639, -9.683813, 0), V(60.618111, -9.684099, 0)], [4, 1, 1, 1, 1, 1, 1, 1, 1, 1, 1, 1, 1, 1, 1, 1, 4], [0, 1.100596872, 2.180981401, 3.259506136, 4.371595435, 5.481727359, 6.576991111, 7.667816242, 8.793363246, 9.406619729, 10.09427138, 10.864108636, 11.721733836, 12.6590937, 13.685439239, 14.801845161, 16], False, 3, [1, 1, 1, 1, 1, 1, 1, 1, 1, 1, 1, 1, 1, 1, 1, 1, 1, 1, 1], False), False)  # 33
sketch14.addGeometry(Part.BSplineCurve([V(60.67981, -4.997801, 0), V(60.560129, -4.997748, 0), V(60.328155, -4.997645, 0), V(59.992553, -5.013621, 0), V(59.680072, -5.031792, 0), V(59.391911, -5.059595, 0), V(59.127929, -5.095403, 0), V(58.8883, -5.140265, 0), V(58.672495, -5.192311, 0), V(58.421604, -5.273687, 0), V(58.138223, -5.397054, 0), V(57.836602, -5.588346, 0), V(57.572843, -5.819685, 0), V(57.353556, -6.087563, 0), V(57.177425, -6.383356, 0), V(57.055086, -6.700369, 0), V(56.974465, -7.033608, 0), V(56.96558, -7.262416, 0), V(56.96106, -7.37881, 0)], [4, 1, 1, 1, 1, 1, 1, 1, 1, 1, 1, 1, 1, 1, 1, 1, 4], [0, 1.146399208, 2.222048177, 3.218135709, 4.144938032, 4.994811973, 5.769438708, 6.479732432, 7.119818093, 8.294689872, 9.430121864, 10.527913442, 11.641375077, 12.733452768, 13.811150417, 14.886538365, 16], False, 3, [1, 1, 1, 1, 1, 1, 1, 1, 1, 1, 1, 1, 1, 1, 1, 1, 1, 1, 1], False), False)  # 34
sketch14.addGeometry(Part.LineSegment(V(60.67981, -4.997801, 0), V(63.243111, -5.017432, 0)), False)  # 35
sketch14.addGeometry(Part.LineSegment(V(63.243111, -5.017432, 0), V(63.243111, -9.684099, 0)), False)  # 36
add_polygon(sketch14, [(67.550803, 2.880004), (67.550803, -11.119996), (68.807213, -11.119996), (68.807213, 2.880004)])  # lines 37-40
add_polygon(sketch14, [(70.96106, 2.880004), (77.422598, -11.119996), (77.602085, -11.119996), (84.243111, 2.880004), (82.871717, 2.880004), (80.743111, -1.607176), (74.396556, -1.607176), (72.326845, 2.880004)])  # lines 41-48
add_polygon(sketch14, [(77.526364, -8.39123), (75.058415, -3.043073), (80.06162, -3.043073)])  # lines 49-51
add_polygon(sketch14, [(93.396957, -11.119996), (94.653367, -11.119996), (94.653367, 2.880004), (93.396957, 2.880004), (93.396957, -3.876006), (86.904569, 2.880004), (85.23029, 2.880004), (92.648159, -4.837945), (85.768752, -11.119996), (87.560819, -11.119996), (93.396957, -5.788666)])  # lines 52-62
sketch14.addConstraint([
    Sketcher.Constraint("Block", 29),
    Sketcher.Constraint("Block", 30),
    Sketcher.Constraint("Block", 31),
    Sketcher.Constraint("Block", 33),
    Sketcher.Constraint("Block", 34),
    Sketcher.Constraint("Coincident", 21, 2, 22, 1),
    Sketcher.Constraint("Coincident", 22, 2, 23, 1),
    Sketcher.Constraint("Coincident", 23, 2, 24, 1),
    Sketcher.Constraint("Coincident", 24, 2, 25, 1),
    Sketcher.Constraint("Coincident", 25, 2, 26, 1),
    Sketcher.Constraint("Coincident", 26, 2, 27, 1),
    Sketcher.Constraint("Coincident", 27, 2, 28, 1),
    Sketcher.Constraint("Coincident", 28, 2, 29, 2),
    Sketcher.Constraint("Coincident", 31, 1, 21, 1),
    Sketcher.Constraint("Coincident", 32, 2, 33, 2),
    Sketcher.Constraint("Coincident", 34, 1, 35, 1),
    Sketcher.Constraint("Coincident", 35, 2, 36, 1),
    Sketcher.Constraint("Coincident", 36, 2, 32, 1),
    Sketcher.Constraint("Vertical", 0),
    Sketcher.Constraint("Horizontal", 1),
    Sketcher.Constraint("Vertical", 2),
    Sketcher.Constraint("Horizontal", 3),
    Sketcher.Constraint("Horizontal", 5),
    Sketcher.Constraint("Horizontal", 8),
    Sketcher.Constraint("Horizontal", 11),
    Sketcher.Constraint("Horizontal", 13),
    Sketcher.Constraint("Horizontal", 16),
    Sketcher.Constraint("Vertical", 17),
    Sketcher.Constraint("Horizontal", 18),
    Sketcher.Constraint("Vertical", 19),
    Sketcher.Constraint("Horizontal", 20),
    Sketcher.Constraint("Horizontal", 21),
    Sketcher.Constraint("Vertical", 22),
    Sketcher.Constraint("Horizontal", 23),
    Sketcher.Constraint("Vertical", 24),
    Sketcher.Constraint("Horizontal", 25),
    Sketcher.Constraint("Horizontal", 27),
    Sketcher.Constraint("Horizontal", 32),
    Sketcher.Constraint("Vertical", 36),
    Sketcher.Constraint("Vertical", 37),
    Sketcher.Constraint("Horizontal", 38),
    Sketcher.Constraint("Vertical", 39),
    Sketcher.Constraint("Horizontal", 40),
    Sketcher.Constraint("Horizontal", 42),
    Sketcher.Constraint("Horizontal", 44),
    Sketcher.Constraint("Horizontal", 46),
    Sketcher.Constraint("Horizontal", 48),
    Sketcher.Constraint("Horizontal", 50),
    Sketcher.Constraint("Horizontal", 52),
    Sketcher.Constraint("Vertical", 53),
    Sketcher.Constraint("Horizontal", 54),
    Sketcher.Constraint("Vertical", 55),
    Sketcher.Constraint("Horizontal", 57),
    Sketcher.Constraint("Horizontal", 60),
    Sketcher.Constraint("Vertical", 62),
    Sketcher.Constraint("Parallel", 26, 28),
    Sketcher.Constraint("Horizontal", 3, 2, 4, 2),
    Sketcher.Constraint("Horizontal", 5, 2, 7, 2),
    Sketcher.Constraint("Horizontal", 8, 2, 10, 2),
    Sketcher.Constraint("Horizontal", 1, 2, 12, 2),
    Sketcher.Constraint("Horizontal", 13, 2, 15, 2),
    Sketcher.Constraint("Horizontal", 16, 2, 17, 2),
    Sketcher.Constraint("Horizontal", 11, 2, 19, 2),
    Sketcher.Constraint("Horizontal", 18, 2, 21, 2),
    Sketcher.Constraint("Horizontal", 20, 2, 22, 2),
    Sketcher.Constraint("Horizontal", 23, 2, 26, 2),
    Sketcher.Constraint("Horizontal", 25, 2, 28, 2),
    Sketcher.Constraint("Horizontal", 21, 2, 37, 2),
    Sketcher.Constraint("Horizontal", 27, 2, 39, 2),
    Sketcher.Constraint("Horizontal", 38, 2, 41, 2),
    Sketcher.Constraint("Horizontal", 40, 2, 43, 2),
    Sketcher.Constraint("Horizontal", 44, 2, 47, 2),
    Sketcher.Constraint("Horizontal", 42, 2, 52, 2),
    Sketcher.Constraint("Horizontal", 48, 2, 53, 2),
    Sketcher.Constraint("Horizontal", 54, 2, 56, 2),
    Sketcher.Constraint("Horizontal", 52, 2, 59, 2),
    Sketcher.Constraint("Vertical", 24, 2, 35, 2),
    Sketcher.Constraint("Vertical", 55, 2, 61, 2),
    Sketcher.Constraint("Equal", 3, 18),
    Sketcher.Constraint("Equal", 20, 23),
    Sketcher.Constraint("Equal", 23, 38),
    Sketcher.Constraint("Equal", 16, 42),
    Sketcher.Constraint("Equal", 40, 52),
    Sketcher.Constraint("DistanceY", 0, 2, 0, 1, 14.0),
    Sketcher.Constraint("Angle", 10, Q("97.580015 deg")),
    Sketcher.Constraint("DistanceX", 45, 2, 43, 2, 3.5),
    Sketcher.Constraint("DistanceX", 32, 2, 32, 1, 2.625),
    Sketcher.Constraint("DistanceX", 1, 1, 1, 2, 1.25641),
    Sketcher.Constraint("DistanceX", 11, 2, 11, 1, 1.262019),
    Sketcher.Constraint("DistanceX", 13, 1, 13, 2, 0.182292),
    Sketcher.Constraint("DistanceX", 57, 2, 57, 1, 1.674279),
    Sketcher.Constraint("DistanceY", 55, 2, 55, 1, 6.75601),
    Sketcher.Constraint("DistanceY", 62, 2, 62, 1, 5.33133),
    Sketcher.Constraint("DistanceX", -1, 1, 5, 2, 47.7988),
    Sketcher.Constraint("DistanceX", -1, 1, 41, 2, 77.422598),
    Sketcher.Constraint("DistanceX", 2, 2, 7, 2, 10.811298),
    Sketcher.Constraint("DistanceX", 16, 2, 18, 2, 5.437901),
    Sketcher.Constraint("DistanceX", 56, 2, 53, 2, 7.748798),
    Sketcher.Constraint("DistanceX", 58, 2, 55, 2, 0.748798),
    Sketcher.Constraint("Distance", 4, 14.121462),
    Sketcher.Constraint("Distance", 41, 15.419192),
    Sketcher.Constraint("Distance", 45, 4.966462),
    Sketcher.Constraint("Distance", 51, 5.918641),
    Sketcher.Constraint("DistanceX", 5, 2, 5, 1, 1.264824),
    Sketcher.Constraint("DistanceX", 8, 2, 8, 1, 0.283253),
    Sketcher.Constraint("DistanceX", 16, 1, 16, 2, 0.179487),
    Sketcher.Constraint("DistanceX", 25, 2, 25, 1, 1.020833),
    Sketcher.Constraint("DistanceX", 44, 2, 44, 1, 1.371394),
    Sketcher.Constraint("DistanceX", 46, 2, 46, 1, 6.346554),
    Sketcher.Constraint("DistanceX", 48, 2, 48, 1, 1.365785),
    Sketcher.Constraint("DistanceX", 50, 1, 50, 2, 5.003205),
    Sketcher.Constraint("DistanceX", 60, 1, 60, 2, 1.792067),
    Sketcher.Constraint("DistanceY", 36, 2, 36, 1, 4.666667),
    Sketcher.Constraint("DistanceX", -1, 1, 6, 2, 46.46106),
    Sketcher.Constraint("DistanceY", 6, 2, -1, 1, 7.21615),
    Sketcher.Constraint("DistanceX", -1, 1, 8, 2, 41.104489),
    Sketcher.Constraint("DistanceX", -1, 1, 10, 2, 34.710258),
    Sketcher.Constraint("DistanceX", -1, 1, 14, 2, 41.255931),
    Sketcher.Constraint("DistanceX", -1, 1, 26, 2, 57.078848),
    Sketcher.Constraint("DistanceX", -1, 1, 43, 2, 84.243111),
    Sketcher.Constraint("DistanceX", -1, 1, 50, 2, 80.06162),
    Sketcher.Constraint("DistanceY", 51, 2, -1, 1, 8.39123),
    Sketcher.Constraint("DistanceX", -1, 1, 56, 2, 86.904569),
    Sketcher.Constraint("DistanceX", -1, 1, 59, 2, 85.768752),
    Sketcher.Constraint("DistanceX", 1, 2, 9, 2, 5.474359),
    Sketcher.Constraint("DistanceX", 12, 2, 9, 2, 0.743189),
    Sketcher.Constraint("DistanceY", 14, 2, 7, 2, 2.512821),
    Sketcher.Constraint("DistanceX", 38, 2, 42, 2, 8.794872),
    Sketcher.Constraint("DistanceX", 51, 2, 42, 2, 0.075721),
    Sketcher.Constraint("DistanceY", 58, 2, 55, 2, 0.961939),
])
pocket4 = body.newObject("PartDesign::Pocket", "Pocket003")
pocket4.Profile = sketch14
pocket4.Length = 1.5

doc.recompute()
